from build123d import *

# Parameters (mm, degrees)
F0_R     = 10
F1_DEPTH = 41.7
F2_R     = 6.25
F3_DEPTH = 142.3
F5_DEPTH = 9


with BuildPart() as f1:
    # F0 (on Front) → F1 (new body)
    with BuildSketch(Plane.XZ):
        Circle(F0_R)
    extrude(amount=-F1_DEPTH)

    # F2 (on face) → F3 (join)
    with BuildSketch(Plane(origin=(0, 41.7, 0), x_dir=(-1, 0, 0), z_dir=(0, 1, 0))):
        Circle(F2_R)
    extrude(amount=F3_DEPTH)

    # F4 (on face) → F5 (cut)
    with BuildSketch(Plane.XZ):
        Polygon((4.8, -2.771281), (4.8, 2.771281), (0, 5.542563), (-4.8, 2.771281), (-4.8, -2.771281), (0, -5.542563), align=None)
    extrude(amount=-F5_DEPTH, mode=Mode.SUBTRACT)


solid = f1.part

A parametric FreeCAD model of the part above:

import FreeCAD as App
import Part
import Sketcher
from FreeCAD import Vector
Q = App.Units.Quantity

doc = App.newDocument("Part")
body = doc.addObject("PartDesign::Body", "Body")

# Sketch on XZ plane
sketch1 = body.newObject("Sketcher::SketchObject", "Sketch")
sketch1.AttachmentSupport = (doc.getObject("XZ_Plane"), [""])
sketch1.MapMode = "FlatFace"
sketch1.addGeometry(Part.Circle(Vector(0, 0, 0), Vector(0, 0, 1), 10), False)
sketch1.addConstraint([
    Sketcher.Constraint("Coincident", 0, 3, -1, 1),
    Sketcher.Constraint("Diameter", 0, Q("20 mm")),
])
pad1 = body.newObject("PartDesign::Pad", "Pad")
pad1.Profile = sketch1
pad1.Length = 41.7
pad1.Reversed = True

# Sketch on XZ plane
sketch2 = body.newObject("Sketcher::SketchObject", "Sketch001")
sketch2.AttachmentSupport = (doc.getObject("XZ_Plane"), [""])
sketch2.MapMode = "FlatFace"
sketch2.AttachmentOffset = App.Placement(Vector(0, 0, -41.7), App.Rotation())
sketch2.addGeometry(Part.Circle(Vector(0, 0, 0), Vector(0, 0, 1), 6), False)
sketch2.addConstraint([
    Sketcher.Constraint("Coincident", 0, 3, -1, 1),
    Sketcher.Constraint("Diameter", 0, Q("12.5 mm")),
])
pad2 = body.newObject("PartDesign::Pad", "Pad001")
pad2.Profile = sketch2
pad2.Length = 142.3
pad2.Reversed = True

# Sketch on XZ plane
sketch3 = body.newObject("Sketcher::SketchObject", "Sketch002")
sketch3.AttachmentSupport = (doc.getObject("XZ_Plane"), [""])
sketch3.MapMode = "FlatFace"
sketch3.addGeometry([
    Part.LineSegment(Vector(5, -3, 0), Vector(5, 3, 0)),  # 0
    Part.LineSegment(Vector(5, 3, 0), Vector(0, 6, 0)),  # 1
    Part.LineSegment(Vector(0, 6, 0), Vector(-5, 3, 0)),  # 2
    Part.LineSegment(Vector(-5, 3, 0), Vector(-5, -3, 0)),  # 3
    Part.LineSegment(Vector(-5, -3, 0), Vector(0, -6, 0)),  # 4
    Part.LineSegment(Vector(0, -6, 0), Vector(5, -3, 0)),  # 5
], False)
sketch3.addConstraint([
    Sketcher.Constraint("Coincident", 0, 2, 1, 1),
    Sketcher.Constraint("Coincident", 1, 2, 2, 1),
    Sketcher.Constraint("Coincident", 2, 2, 3, 1),
    Sketcher.Constraint("Coincident", 3, 2, 4, 1),
    Sketcher.Constraint("Coincident", 4, 2, 5, 1),
    Sketcher.Constraint("Coincident", 5, 2, 0, 1),
    Sketcher.Constraint("Vertical", 0),
    Sketcher.Constraint("Vertical", 3),
    Sketcher.Constraint("Symmetric", 0, 2, 3, 2, -1, 1),
    Sketcher.Constraint("Symmetric", 1, 2, 4, 2, -1, 1),
    Sketcher.Constraint("PointOnObject", 1, 2, -2),
    Sketcher.Constraint("Parallel", 2, 5),
    Sketcher.Constraint("Horizontal", 0, 2, 2, 2),
    Sketcher.Constraint("Angle", 1, Q("149.999994 deg")),
    Sketcher.Constraint("DistanceX", -1, 1, 0, 2, Q("4.8 mm")),
    Sketcher.Constraint("DistanceY", 0, 1, 0, 2, Q("5.542562 mm")),
])
pocket1 = body.newObject("PartDesign::Pocket", "Pocket")
pocket1.Profile = sketch3
pocket1.Length = 9

doc.recompute()
